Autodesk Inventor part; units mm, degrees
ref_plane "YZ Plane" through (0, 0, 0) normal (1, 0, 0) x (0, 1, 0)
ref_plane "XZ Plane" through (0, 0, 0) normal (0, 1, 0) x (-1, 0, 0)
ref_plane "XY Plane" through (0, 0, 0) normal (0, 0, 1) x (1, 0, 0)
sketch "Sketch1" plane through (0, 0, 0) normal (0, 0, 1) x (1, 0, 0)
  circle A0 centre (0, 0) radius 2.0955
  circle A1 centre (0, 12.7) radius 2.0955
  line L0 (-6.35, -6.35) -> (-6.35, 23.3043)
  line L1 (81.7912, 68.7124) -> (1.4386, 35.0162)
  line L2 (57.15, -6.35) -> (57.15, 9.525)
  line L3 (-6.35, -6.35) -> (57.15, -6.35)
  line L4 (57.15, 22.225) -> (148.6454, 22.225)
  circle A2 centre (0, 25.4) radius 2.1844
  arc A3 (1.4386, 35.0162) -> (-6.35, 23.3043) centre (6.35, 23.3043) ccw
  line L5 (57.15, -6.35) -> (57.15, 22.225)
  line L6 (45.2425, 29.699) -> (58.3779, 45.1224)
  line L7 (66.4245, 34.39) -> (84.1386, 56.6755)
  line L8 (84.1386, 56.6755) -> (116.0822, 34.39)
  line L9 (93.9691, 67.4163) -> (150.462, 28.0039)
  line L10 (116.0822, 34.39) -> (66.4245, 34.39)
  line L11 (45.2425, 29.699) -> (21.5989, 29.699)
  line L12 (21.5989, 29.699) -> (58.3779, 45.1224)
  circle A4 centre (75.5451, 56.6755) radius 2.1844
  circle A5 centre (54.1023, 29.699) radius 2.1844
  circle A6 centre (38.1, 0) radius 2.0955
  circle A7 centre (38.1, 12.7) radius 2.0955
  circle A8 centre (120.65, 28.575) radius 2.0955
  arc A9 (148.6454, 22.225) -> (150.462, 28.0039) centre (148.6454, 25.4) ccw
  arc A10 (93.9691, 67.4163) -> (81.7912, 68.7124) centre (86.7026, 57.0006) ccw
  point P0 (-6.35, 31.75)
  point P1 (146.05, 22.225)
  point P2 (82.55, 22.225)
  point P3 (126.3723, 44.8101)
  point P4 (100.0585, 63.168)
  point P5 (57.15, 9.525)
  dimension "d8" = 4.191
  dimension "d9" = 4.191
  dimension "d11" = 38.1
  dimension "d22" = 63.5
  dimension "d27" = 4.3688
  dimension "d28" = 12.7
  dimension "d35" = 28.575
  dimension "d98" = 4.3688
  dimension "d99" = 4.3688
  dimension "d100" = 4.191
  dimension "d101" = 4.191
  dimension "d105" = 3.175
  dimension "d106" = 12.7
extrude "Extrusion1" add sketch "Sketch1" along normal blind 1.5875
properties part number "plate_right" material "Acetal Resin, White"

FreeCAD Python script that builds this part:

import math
import FreeCAD as App
import Part
import Sketcher
Q = App.Units.Quantity

doc = App.newDocument("Part")
body = doc.addObject("PartDesign::Body", "Body")

# Sketch on XY plane
sketch1 = doc.addObject("Sketcher::SketchObject", "Sketch")
body.addObject(sketch1)
sketch1.AttachmentSupport = (doc.XY_Plane, [""])
sketch1.MapMode = "FlatFace"
sketch1.addGeometry([
    Part.LineSegment(App.Vector(-6.3, 23.3, 0), App.Vector(-6.3, -6.3, 0)),  # 0
    Part.LineSegment(App.Vector(-6.3, -6.3, 0), App.Vector(57.1, -6.3, 0)),  # 1
    Part.LineSegment(App.Vector(57.1, -6.3, 0), App.Vector(57.1, 22.2, 0)),  # 2
    Part.LineSegment(App.Vector(57.1, 22.2, 0), App.Vector(148.6, 22.2, 0)),  # 3
    Part.ArcOfCircle(Part.Circle(App.Vector(148.6, 25.4, 0), App.Vector(0, 0, 1), 3.2), math.radians(-90), math.radians(55)),  # 4
    Part.LineSegment(App.Vector(150.5, 28, 0), App.Vector(94, 67.4, 0)),  # 5
    Part.ArcOfCircle(Part.Circle(App.Vector(86.7, 57, 0), App.Vector(0, 0, 1), 12.7), math.radians(55), math.radians(113)),  # 6
    Part.LineSegment(App.Vector(81.8, 68.7, 0), App.Vector(1.4, 35, 0)),  # 7
    Part.ArcOfCircle(Part.Circle(App.Vector(6.3, 23.3, 0), App.Vector(0, 0, 1), 12.7), math.radians(113), math.radians(180)),  # 8
    Part.Circle(App.Vector(0, 0, 0), App.Vector(0, 0, 1), 2.1),  # 9
    Part.Circle(App.Vector(38.1, 0, 0), App.Vector(0, 0, 1), 2.1),  # 10
    Part.Circle(App.Vector(0, 12.7, 0), App.Vector(0, 0, 1), 2.1),  # 11
    Part.Circle(App.Vector(0, 25.4, 0), App.Vector(0, 0, 1), 2.2),  # 12
    Part.Circle(App.Vector(38.1, 12.7, 0), App.Vector(0, 0, 1), 2.1),  # 13
    Part.Circle(App.Vector(54.1, 29.7, 0), App.Vector(0, 0, 1), 2.2),  # 14
    Part.Circle(App.Vector(120.7, 28.6, 0), App.Vector(0, 0, 1), 2.1),  # 15
    Part.LineSegment(App.Vector(58.4, 45.1, 0), App.Vector(45.2, 29.7, 0)),  # 16
    Part.LineSegment(App.Vector(45.2, 29.7, 0), App.Vector(21.6, 29.7, 0)),  # 17
    Part.LineSegment(App.Vector(21.6, 29.7, 0), App.Vector(58.4, 45.1, 0)),  # 18
    Part.LineSegment(App.Vector(116.1, 34.4, 0), App.Vector(66.4, 34.4, 0)),  # 19
    Part.LineSegment(App.Vector(66.4, 34.4, 0), App.Vector(84.1, 56.7, 0)),  # 20
    Part.LineSegment(App.Vector(84.1, 56.7, 0), App.Vector(116.1, 34.4, 0)),  # 21
    Part.Circle(App.Vector(75.5, 56.7, 0), App.Vector(0, 0, 1), 2.2),  # 22
], False)
sketch1.addConstraint([
    Sketcher.Constraint("Coincident", 0, 2, 1, 1),
    Sketcher.Constraint("Coincident", 1, 2, 2, 1),
    Sketcher.Constraint("Coincident", 2, 2, 3, 1),
    Sketcher.Constraint("Tangent", 3, 2, 4, 1),
    Sketcher.Constraint("Tangent", 4, 2, 5, 1),
    Sketcher.Constraint("Tangent", 5, 2, 6, 1),
    Sketcher.Constraint("Tangent", 6, 2, 7, 1),
    Sketcher.Constraint("Tangent", 7, 2, 8, 1),
    Sketcher.Constraint("Tangent", 8, 2, 0, 1),
    Sketcher.Constraint("Coincident", 16, 2, 17, 1),
    Sketcher.Constraint("Coincident", 17, 2, 18, 1),
    Sketcher.Constraint("Coincident", 18, 2, 16, 1),
    Sketcher.Constraint("Coincident", 19, 2, 20, 1),
    Sketcher.Constraint("Coincident", 20, 2, 21, 1),
    Sketcher.Constraint("Coincident", 21, 2, 19, 1),
    Sketcher.Constraint("Vertical", 0),
    Sketcher.Constraint("Horizontal", 1),
    Sketcher.Constraint("Vertical", 2),
    Sketcher.Constraint("Horizontal", 3),
    Sketcher.Constraint("Horizontal", 17),
    Sketcher.Constraint("Horizontal", 19),
    Sketcher.Constraint("Coincident", 9, 3, -1, 1),
    Sketcher.Constraint("Equal", 6, 8),
    Sketcher.Constraint("Equal", 9, 10),
    Sketcher.Constraint("Equal", 10, 11),
    Sketcher.Constraint("Equal", 11, 13),
    Sketcher.Constraint("Equal", 12, 14),
    Sketcher.Constraint("Equal", 13, 15),
    Sketcher.Constraint("Equal", 14, 22),
    Sketcher.Constraint("PointOnObject", 10, 3, -1),
    Sketcher.Constraint("PointOnObject", 11, 3, -2),
    Sketcher.Constraint("PointOnObject", 12, 3, -2),
    Sketcher.Constraint("Parallel", 7, 18),
    Sketcher.Constraint("Parallel", 5, 21),
    Sketcher.Constraint("Horizontal", 4, 3, 12, 3),
    Sketcher.Constraint("Horizontal", 11, 3, 13, 3),
    Sketcher.Constraint("Horizontal", 14, 3, 16, 2),
    Sketcher.Constraint("Horizontal", 22, 3, 20, 2),
    Sketcher.Constraint("Vertical", 10, 3, 13, 3),
    Sketcher.Constraint("Radius", 6, Q("0.5 in")),
    Sketcher.Constraint("Diameter", 9, Q("0.165 in")),
    Sketcher.Constraint("Diameter", 12, Q("0.172 in")),
    Sketcher.Constraint("DistanceX", 1, 1, 1, 2, Q("2.5 in")),
    Sketcher.Constraint("Radius", 4, Q("0.125 in")),
    Sketcher.Constraint("DistanceX", -1, 1, 10, 3, Q("1.5 in")),
    Sketcher.Constraint("DistanceY", -1, 1, 11, 3, Q("0.5 in")),
    Sketcher.Constraint("DistanceY", 11, 3, 4, 3, Q("0.5 in")),
    Sketcher.Constraint("DistanceY", 2, 1, 2, 2, Q("1.125 in")),
    Sketcher.Constraint("DistanceY", -1, 1, 15, 3, Q("1.125 in")),
    Sketcher.Constraint("DistanceX", -1, 1, 8, 3, Q("0.25 in")),
    Sketcher.Constraint("DistanceX", -1, 1, 14, 3, Q("2.13 in")),
    Sketcher.Constraint("DistanceX", -1, 1, 15, 3, Q("4.75 in")),
    Sketcher.Constraint("Angle", 7, Q("-157.249 deg")),
    Sketcher.Constraint("Angle", 16, Q("-130.4195 deg")),
    Sketcher.Constraint("Angle", 20, Q("51.5198 deg")),
    Sketcher.Constraint("DistanceY", 0, 2, 0, 1, Q("1.1675 in")),
    Sketcher.Constraint("Distance", 5, Q("2.7119 in")),
    Sketcher.Constraint("Distance", 7, Q("3.4304 in")),
    Sketcher.Constraint("Distance", 16, Q("0.7976 in")),
    Sketcher.Constraint("Distance", 20, Q("1.1208 in")),
    Sketcher.Constraint("DistanceX", -1, 1, 16, 2, Q("1.7812 in")),
    Sketcher.Constraint("DistanceY", 22, 3, 6, 3, Q("0.0128 in")),
    Sketcher.Constraint("DistanceX", 14, 3, 22, 3, Q("0.8442 in")),
    Sketcher.Constraint("DistanceX", 18, 2, 19, 2, Q("0.3168 in")),
    Sketcher.Constraint("DistanceY", -1, 1, 14, 3, 29.699),
])
pad1 = doc.addObject("PartDesign::Pad", "Pad")
body.addObject(pad1)
pad1.Profile = sketch1
pad1.Length = Q("0.0625 in")

doc.recompute()
